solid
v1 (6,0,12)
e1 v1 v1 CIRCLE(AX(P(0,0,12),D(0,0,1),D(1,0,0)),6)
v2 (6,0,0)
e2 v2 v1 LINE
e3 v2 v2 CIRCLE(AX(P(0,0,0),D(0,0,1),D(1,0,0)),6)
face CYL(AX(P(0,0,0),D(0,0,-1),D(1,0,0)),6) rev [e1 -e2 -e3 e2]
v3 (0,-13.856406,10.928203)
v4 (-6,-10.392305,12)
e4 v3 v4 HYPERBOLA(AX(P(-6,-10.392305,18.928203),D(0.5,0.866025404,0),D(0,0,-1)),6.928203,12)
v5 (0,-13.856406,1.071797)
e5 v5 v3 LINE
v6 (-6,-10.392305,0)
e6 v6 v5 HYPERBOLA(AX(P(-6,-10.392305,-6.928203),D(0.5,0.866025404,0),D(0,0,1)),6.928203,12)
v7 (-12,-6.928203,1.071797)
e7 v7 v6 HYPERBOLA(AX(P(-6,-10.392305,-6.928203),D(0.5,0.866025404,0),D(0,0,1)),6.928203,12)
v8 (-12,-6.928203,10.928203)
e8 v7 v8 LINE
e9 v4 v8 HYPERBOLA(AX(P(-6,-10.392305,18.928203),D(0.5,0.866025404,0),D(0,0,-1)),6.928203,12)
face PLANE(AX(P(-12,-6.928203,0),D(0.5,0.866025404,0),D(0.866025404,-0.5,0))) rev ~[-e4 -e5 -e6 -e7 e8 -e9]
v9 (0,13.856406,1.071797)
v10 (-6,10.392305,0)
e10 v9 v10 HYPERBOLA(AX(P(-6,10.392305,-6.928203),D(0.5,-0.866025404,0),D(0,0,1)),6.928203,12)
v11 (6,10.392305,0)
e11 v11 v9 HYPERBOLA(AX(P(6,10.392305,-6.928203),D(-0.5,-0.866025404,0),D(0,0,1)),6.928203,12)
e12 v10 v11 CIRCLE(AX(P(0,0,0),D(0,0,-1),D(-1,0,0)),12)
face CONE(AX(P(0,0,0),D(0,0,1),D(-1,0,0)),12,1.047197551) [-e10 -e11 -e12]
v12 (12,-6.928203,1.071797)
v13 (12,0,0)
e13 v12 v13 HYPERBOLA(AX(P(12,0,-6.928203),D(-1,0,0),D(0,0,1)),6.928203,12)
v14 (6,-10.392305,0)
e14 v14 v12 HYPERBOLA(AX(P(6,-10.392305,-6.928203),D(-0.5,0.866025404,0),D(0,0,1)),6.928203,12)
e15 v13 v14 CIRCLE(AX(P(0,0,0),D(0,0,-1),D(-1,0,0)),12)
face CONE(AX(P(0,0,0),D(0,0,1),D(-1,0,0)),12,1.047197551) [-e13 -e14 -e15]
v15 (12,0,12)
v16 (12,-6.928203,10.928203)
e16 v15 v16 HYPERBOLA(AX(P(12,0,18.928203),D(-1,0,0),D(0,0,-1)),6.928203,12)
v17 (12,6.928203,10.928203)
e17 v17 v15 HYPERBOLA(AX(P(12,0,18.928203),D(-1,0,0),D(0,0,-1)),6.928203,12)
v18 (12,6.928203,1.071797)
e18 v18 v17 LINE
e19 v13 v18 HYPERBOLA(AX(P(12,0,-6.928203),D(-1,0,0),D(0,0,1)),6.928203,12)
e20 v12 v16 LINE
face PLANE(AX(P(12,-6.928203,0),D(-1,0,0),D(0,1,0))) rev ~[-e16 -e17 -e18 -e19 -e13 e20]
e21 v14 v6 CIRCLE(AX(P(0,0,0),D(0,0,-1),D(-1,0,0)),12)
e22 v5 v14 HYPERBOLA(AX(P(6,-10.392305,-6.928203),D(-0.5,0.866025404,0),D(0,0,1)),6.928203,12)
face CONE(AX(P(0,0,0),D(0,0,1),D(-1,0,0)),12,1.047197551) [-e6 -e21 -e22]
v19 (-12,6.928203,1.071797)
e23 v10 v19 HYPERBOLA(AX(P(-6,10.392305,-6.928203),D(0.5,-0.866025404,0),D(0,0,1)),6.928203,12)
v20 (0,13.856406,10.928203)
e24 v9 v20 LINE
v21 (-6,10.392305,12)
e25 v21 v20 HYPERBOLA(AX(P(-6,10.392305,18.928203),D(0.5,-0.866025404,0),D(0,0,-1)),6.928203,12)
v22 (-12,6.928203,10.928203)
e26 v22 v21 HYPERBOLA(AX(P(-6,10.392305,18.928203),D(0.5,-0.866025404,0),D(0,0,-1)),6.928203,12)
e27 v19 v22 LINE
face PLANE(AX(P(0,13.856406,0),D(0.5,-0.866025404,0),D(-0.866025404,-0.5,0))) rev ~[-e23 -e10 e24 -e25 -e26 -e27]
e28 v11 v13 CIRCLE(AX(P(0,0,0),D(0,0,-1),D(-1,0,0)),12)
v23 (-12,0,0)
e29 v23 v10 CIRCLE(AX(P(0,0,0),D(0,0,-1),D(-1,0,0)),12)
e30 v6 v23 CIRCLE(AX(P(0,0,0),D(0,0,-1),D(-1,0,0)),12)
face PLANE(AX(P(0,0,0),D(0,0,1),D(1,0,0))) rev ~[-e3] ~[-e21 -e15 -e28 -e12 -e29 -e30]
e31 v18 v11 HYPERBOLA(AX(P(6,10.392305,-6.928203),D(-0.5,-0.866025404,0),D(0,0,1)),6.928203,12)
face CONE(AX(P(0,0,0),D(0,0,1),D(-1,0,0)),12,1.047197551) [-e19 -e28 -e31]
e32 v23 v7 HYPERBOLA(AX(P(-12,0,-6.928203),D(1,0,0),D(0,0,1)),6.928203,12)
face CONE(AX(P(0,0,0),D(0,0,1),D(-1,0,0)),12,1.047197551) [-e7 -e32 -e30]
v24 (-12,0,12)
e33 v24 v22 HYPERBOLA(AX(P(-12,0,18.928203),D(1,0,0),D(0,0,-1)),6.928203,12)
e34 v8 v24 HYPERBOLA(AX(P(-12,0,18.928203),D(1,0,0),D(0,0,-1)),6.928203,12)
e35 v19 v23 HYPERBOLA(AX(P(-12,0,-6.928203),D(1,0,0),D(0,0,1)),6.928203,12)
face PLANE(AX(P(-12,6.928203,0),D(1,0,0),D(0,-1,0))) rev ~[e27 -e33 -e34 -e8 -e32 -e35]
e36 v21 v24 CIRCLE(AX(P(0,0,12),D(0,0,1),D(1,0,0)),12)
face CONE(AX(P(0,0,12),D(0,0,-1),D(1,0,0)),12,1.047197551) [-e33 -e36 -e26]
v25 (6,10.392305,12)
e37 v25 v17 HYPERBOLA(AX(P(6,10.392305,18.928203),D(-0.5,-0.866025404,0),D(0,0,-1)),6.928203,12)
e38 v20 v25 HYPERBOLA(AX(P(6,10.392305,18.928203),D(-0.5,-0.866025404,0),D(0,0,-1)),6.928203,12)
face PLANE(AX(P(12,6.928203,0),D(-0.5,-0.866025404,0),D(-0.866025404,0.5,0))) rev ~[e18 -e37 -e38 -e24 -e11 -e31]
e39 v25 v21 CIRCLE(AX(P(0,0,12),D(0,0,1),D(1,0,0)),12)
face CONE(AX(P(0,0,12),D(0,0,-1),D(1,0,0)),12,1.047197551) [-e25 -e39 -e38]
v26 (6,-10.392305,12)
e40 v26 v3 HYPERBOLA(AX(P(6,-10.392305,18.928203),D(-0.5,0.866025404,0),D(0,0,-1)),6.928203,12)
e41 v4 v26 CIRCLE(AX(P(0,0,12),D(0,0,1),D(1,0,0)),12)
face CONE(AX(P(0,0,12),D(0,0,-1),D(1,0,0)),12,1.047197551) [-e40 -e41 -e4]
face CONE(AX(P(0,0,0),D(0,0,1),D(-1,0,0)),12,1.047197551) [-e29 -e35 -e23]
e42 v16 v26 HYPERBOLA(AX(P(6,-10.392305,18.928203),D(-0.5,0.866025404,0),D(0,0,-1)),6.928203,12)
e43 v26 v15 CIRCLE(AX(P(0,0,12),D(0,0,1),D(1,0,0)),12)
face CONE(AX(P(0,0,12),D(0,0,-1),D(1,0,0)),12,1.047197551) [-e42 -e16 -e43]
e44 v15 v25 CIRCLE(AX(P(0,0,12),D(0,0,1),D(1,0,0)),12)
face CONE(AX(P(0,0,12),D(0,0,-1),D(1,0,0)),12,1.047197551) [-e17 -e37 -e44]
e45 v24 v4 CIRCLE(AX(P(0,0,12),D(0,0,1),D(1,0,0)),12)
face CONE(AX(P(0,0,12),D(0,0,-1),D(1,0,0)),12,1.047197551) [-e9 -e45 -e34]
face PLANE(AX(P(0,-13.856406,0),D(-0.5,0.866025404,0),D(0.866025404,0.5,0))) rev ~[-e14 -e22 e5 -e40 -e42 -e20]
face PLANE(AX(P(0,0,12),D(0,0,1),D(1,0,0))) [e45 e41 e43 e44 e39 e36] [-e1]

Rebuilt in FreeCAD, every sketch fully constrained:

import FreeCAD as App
import Part
import Sketcher
Q = App.Units.Quantity


def faces_at(feature, points):
    """Names of the faces that lie closest to the given points."""
    faces = feature.Shape.Faces
    near = lambda p: min(range(len(faces)), key=lambda i: faces[i].distToShape(Part.Vertex(*p))[0])
    return sorted({f"Face{near(p) + 1}" for p in points})


def add_polygon(sketch, points):
    """Adds a closed chain of lines whose ends are joined by coincident constraints."""
    first, n = sketch.GeometryCount, len(points)
    for a, b in zip(points, points[1:] + points[:1]):
        sketch.addGeometry(Part.LineSegment(App.Vector(*a, 0), App.Vector(*b, 0)), False)
    for i in range(n):
        sketch.addConstraint(Sketcher.Constraint("Coincident", first + i, 2, first + (i + 1) % n, 1))

doc = App.newDocument("Part")
body = doc.addObject("PartDesign::Body", "Body")

# Sketch on XY plane
sketch1 = body.newObject("Sketcher::SketchObject", "Sketch")
sketch1.AttachmentSupport = (doc.getObject("XY_Plane"), [""])
sketch1.MapMode = "FlatFace"
add_polygon(sketch1, [(0, 14), (-12, 7), (-12, -7), (0, -14), (12, -7), (12, 7)])  # lines 0-5
sketch1.addGeometry(Part.Circle(App.Vector(0, 0, 0), App.Vector(0, 0, 1), 6), False)  # 6
sketch1.addConstraint(Sketcher.Constraint("Vertical", 1))
sketch1.addConstraint(Sketcher.Constraint("Vertical", 4))
sketch1.addConstraint(Sketcher.Constraint("Coincident", 6, 3, -1, 1))
sketch1.addConstraint(Sketcher.Constraint("Symmetric", 0, 2, 3, 2, -1, 1))
sketch1.addConstraint(Sketcher.Constraint("Symmetric", 2, 2, 5, 2, -1, 1))
sketch1.addConstraint(Sketcher.Constraint("PointOnObject", 2, 2, -2))
sketch1.addConstraint(Sketcher.Constraint("Parallel", 2, 5))
sketch1.addConstraint(Sketcher.Constraint("Horizontal", 1, 2, 3, 2))
sketch1.addConstraint(Sketcher.Constraint("Diameter", 6, 12.0))
sketch1.addConstraint(Sketcher.Constraint("Angle", 0, Q("-150 deg")))
sketch1.addConstraint(Sketcher.Constraint("DistanceX", 0, 2, -1, 1, 12.0))
sketch1.addConstraint(Sketcher.Constraint("DistanceY", 1, 2, 1, 1, 13.856406))
pad1 = body.newObject("PartDesign::Pad", "Pad")
pad1.Profile = sketch1
pad1.Length = 12
body2 = doc.addObject("PartDesign::Body", "Body001")

# Sketch on XY plane
sketch2 = body2.newObject("Sketcher::SketchObject", "Sketch001")
sketch2.AttachmentSupport = (doc.getObject("XY_Plane001"), [""])
sketch2.MapMode = "FlatFace"
add_polygon(sketch2, [(77, 79), (77, -79), (-77, -79), (-77, 79)])  # lines 0-3
sketch2.addGeometry(Part.Circle(App.Vector(0, 0, 0), App.Vector(0, 0, 1), 12), False)  # 4
sketch2.addConstraint(Sketcher.Constraint("Vertical", 0))
sketch2.addConstraint(Sketcher.Constraint("Horizontal", 1))
sketch2.addConstraint(Sketcher.Constraint("Vertical", 2))
sketch2.addConstraint(Sketcher.Constraint("Horizontal", 3))
sketch2.addConstraint(Sketcher.Constraint("Coincident", 4, 3, -1, 1))
sketch2.addConstraint(Sketcher.Constraint("Symmetric", 0, 2, 2, 2, -1, 1))
sketch2.addConstraint(Sketcher.Constraint("Diameter", 4, 24.0))
sketch2.addConstraint(Sketcher.Constraint("DistanceY", 0, 2, 0, 1, 158.67))
sketch2.addConstraint(Sketcher.Constraint("DistanceX", 1, 2, 1, 1, 154.958))
pad2 = body2.newObject("PartDesign::Pad", "Pad001")
pad2.Profile = sketch2
pad2.Length = 35
doc.recompute()

draft = body2.newObject("PartDesign::Draft", "Draft")
draft.Base = (pad2, faces_at(pad2, [
    (0, -79.335, 17.5),
    (-77.479, 0, 17.5),
    (0, 79.335, 17.5),
    (77.479, 0, 17.5),
    (12, 0, 17.5),
]))
draft.NeutralPlane = (doc.getObject("XY_Plane001"), [""])
draft.Angle = 60
draft.Reversed = False
doc.recompute()

boolean = body.newObject("PartDesign::Boolean", "Boolean")
boolean.Type = "Cut"
boolean.addObjects([body2])
body3 = doc.addObject("PartDesign::Body", "Body002")

# Sketch on XY plane
sketch3 = body3.newObject("Sketcher::SketchObject", "Sketch002")
sketch3.AttachmentSupport = (doc.getObject("XY_Plane002"), [""])
sketch3.MapMode = "FlatFace"
sketch3.AttachmentOffset = App.Placement(App.Vector(0, 0, 12), App.Rotation())
add_polygon(sketch3, [(-77, 79), (-77, -79), (77, -79), (77, 79)])  # lines 0-3
sketch3.addGeometry(Part.Circle(App.Vector(0, 0, 0), App.Vector(0, 0, 1), 12), False)  # 4
sketch3.addConstraint(Sketcher.Constraint("Vertical", 0))
sketch3.addConstraint(Sketcher.Constraint("Horizontal", 1))
sketch3.addConstraint(Sketcher.Constraint("Vertical", 2))
sketch3.addConstraint(Sketcher.Constraint("Horizontal", 3))
sketch3.addConstraint(Sketcher.Constraint("Coincident", 4, 3, -1, 1))
sketch3.addConstraint(Sketcher.Constraint("Symmetric", 0, 2, 2, 2, -1, 1))
sketch3.addConstraint(Sketcher.Constraint("Diameter", 4, 24.0))
sketch3.addConstraint(Sketcher.Constraint("DistanceY", 0, 2, 0, 1, 158.67))
sketch3.addConstraint(Sketcher.Constraint("DistanceX", 1, 1, 1, 2, 154.958))
pad3 = body3.newObject("PartDesign::Pad", "Pad002")
pad3.Profile = sketch3
pad3.Length = 35
pad3.Reversed = True
doc.recompute()

datumplane = body3.newObject("PartDesign::Plane", "DatumPlane")
datumplane.AttachmentSupport = (doc.getObject("XY_Plane002"), [""])
datumplane.MapMode = "FlatFace"
datumplane.AttachmentOffset = App.Placement(App.Vector(0, 0, 12), App.Rotation())
draft2 = body3.newObject("PartDesign::Draft", "Draft001")
draft2.Base = (pad3, faces_at(pad3, [
    (0, -79.335, -5.5),
    (77.479, 0, -5.5),
    (0, 79.335, -5.5),
    (-77.479, 0, -5.5),
    (-12, 0, -5.5),
]))
draft2.NeutralPlane = (datumplane, [""])
draft2.Angle = 60
draft2.Reversed = True
doc.recompute()

boolean2 = body.newObject("PartDesign::Boolean", "Boolean001")
boolean2.Type = "Cut"
boolean2.addObjects([body3])

doc.recompute()
